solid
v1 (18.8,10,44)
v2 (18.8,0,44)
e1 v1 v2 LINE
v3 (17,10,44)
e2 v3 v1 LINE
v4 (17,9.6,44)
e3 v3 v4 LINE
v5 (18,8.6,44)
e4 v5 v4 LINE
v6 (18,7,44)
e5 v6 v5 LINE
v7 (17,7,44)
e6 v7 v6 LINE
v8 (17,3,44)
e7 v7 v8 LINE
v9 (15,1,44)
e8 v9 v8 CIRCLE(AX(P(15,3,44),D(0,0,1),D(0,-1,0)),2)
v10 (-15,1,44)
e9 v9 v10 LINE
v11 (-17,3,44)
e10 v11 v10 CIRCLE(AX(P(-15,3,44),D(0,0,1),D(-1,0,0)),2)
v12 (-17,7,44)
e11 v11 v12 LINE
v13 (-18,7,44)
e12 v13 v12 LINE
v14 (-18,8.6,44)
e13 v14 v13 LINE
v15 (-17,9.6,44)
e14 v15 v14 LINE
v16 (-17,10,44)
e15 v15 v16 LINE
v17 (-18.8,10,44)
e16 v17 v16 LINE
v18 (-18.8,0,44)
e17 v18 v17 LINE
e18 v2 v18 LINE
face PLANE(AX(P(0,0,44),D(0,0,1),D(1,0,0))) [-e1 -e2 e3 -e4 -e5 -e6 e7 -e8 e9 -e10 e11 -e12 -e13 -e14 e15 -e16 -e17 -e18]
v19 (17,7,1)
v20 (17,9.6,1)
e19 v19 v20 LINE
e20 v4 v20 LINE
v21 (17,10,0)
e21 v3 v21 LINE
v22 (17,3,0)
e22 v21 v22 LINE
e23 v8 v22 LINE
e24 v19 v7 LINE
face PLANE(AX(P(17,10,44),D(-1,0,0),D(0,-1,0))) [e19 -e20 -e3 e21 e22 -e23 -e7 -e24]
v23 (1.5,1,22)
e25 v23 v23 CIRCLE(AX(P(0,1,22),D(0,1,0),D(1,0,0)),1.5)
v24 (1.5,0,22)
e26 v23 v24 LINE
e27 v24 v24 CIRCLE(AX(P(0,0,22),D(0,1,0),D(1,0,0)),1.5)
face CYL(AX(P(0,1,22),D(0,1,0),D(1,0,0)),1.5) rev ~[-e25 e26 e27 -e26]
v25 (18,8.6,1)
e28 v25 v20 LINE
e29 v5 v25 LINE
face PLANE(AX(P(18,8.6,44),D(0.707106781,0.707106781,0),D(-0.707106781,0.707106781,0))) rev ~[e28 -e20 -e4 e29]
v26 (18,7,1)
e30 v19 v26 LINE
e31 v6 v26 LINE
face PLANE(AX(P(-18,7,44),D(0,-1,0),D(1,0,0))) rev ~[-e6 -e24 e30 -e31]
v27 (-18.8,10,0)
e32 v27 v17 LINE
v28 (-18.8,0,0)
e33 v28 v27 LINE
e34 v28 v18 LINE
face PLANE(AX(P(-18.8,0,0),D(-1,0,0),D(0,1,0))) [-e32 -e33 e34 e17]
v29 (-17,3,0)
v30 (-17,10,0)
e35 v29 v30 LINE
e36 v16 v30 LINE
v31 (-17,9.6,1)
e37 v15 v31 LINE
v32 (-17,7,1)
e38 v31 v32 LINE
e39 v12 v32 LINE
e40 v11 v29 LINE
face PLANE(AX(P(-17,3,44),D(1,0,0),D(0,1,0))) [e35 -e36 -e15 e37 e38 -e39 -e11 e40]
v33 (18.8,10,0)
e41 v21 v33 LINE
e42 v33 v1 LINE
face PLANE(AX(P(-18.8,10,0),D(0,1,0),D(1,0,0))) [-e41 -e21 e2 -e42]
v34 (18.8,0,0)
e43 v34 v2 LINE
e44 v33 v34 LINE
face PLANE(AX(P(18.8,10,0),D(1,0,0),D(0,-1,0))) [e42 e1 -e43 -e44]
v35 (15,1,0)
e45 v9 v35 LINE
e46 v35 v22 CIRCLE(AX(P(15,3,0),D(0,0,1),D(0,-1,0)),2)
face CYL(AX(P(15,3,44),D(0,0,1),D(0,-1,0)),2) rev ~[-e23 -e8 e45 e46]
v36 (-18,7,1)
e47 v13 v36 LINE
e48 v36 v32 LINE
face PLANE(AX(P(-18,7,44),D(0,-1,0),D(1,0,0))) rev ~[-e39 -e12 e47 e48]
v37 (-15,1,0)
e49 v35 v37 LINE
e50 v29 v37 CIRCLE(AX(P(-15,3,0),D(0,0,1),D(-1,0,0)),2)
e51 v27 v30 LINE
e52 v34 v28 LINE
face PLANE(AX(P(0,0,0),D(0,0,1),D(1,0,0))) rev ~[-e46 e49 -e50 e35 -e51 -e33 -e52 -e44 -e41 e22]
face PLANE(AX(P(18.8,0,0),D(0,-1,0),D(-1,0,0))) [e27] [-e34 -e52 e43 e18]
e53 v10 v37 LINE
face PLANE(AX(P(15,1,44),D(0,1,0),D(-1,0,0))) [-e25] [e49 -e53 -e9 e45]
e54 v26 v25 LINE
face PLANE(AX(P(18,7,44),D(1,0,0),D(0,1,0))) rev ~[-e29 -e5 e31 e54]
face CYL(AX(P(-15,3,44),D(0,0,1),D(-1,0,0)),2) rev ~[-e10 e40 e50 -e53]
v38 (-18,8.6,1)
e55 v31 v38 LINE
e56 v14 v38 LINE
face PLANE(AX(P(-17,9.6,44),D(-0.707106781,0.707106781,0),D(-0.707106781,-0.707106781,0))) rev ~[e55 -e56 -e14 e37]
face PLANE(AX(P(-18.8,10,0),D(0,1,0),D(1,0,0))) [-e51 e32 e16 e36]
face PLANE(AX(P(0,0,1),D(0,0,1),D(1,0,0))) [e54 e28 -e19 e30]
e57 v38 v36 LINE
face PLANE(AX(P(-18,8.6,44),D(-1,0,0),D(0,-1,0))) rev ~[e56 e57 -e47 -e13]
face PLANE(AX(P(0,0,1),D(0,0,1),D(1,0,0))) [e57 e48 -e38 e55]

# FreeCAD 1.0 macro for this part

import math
import FreeCAD as App
import Part
import Sketcher

doc = App.newDocument("Part")
params = doc.addObject("Spreadsheet::Sheet", "Params")
for row, (alias, value) in enumerate([
    ("sketch1_height", "10 mm"),
    ("sketch1_width", "37.6 mm"),
    ("pad1_length", "44 mm"),
    ("sketch2_radius", "2 mm"),
    ("sketch2_width", "34 mm"),
    ("pocket1_length", "44 mm"),
    ("sketch3_width", "34 mm"),
    ("sketch3_width2", "36 mm"),
    ("pocket2_length", "43 mm"),
    ("sketch4_diameter", "3 mm"),
], start=1):
    params.set(f"A{row}", alias)
    params.set(f"B{row}", "=" + value)
    params.setAlias(f"B{row}", alias)

body = doc.addObject("PartDesign::Body", "Body")

sketch1 = body.newObject("Sketcher::SketchObject", "Sketch")
sketch1.AttachmentSupport = (doc.getObject("XY_Plane"), [""])
sketch1.MapMode = "FlatFace"
sketch1.addGeometry(Part.LineSegment(App.Vector(19, 10, 0), App.Vector(-19, 10, 0)), False)
sketch1.addGeometry(Part.LineSegment(App.Vector(-19, 10, 0), App.Vector(-19, 0, 0)), False)
sketch1.addGeometry(Part.LineSegment(App.Vector(-19, 0, 0), App.Vector(19, 0, 0)), False)
sketch1.addGeometry(Part.LineSegment(App.Vector(19, 0, 0), App.Vector(19, 10, 0)), False)
sketch1.addConstraint(Sketcher.Constraint("Coincident", 0, 2, 1, 1))
sketch1.addConstraint(Sketcher.Constraint("Coincident", 1, 2, 2, 1))
sketch1.addConstraint(Sketcher.Constraint("Coincident", 2, 2, 3, 1))
sketch1.addConstraint(Sketcher.Constraint("Coincident", 3, 2, 0, 1))
sketch1.addConstraint(Sketcher.Constraint("Horizontal", 0))
sketch1.addConstraint(Sketcher.Constraint("Vertical", 1))
sketch1.addConstraint(Sketcher.Constraint("Horizontal", 2))
sketch1.addConstraint(Sketcher.Constraint("Vertical", 3))
sketch1.addConstraint(Sketcher.Constraint("Symmetric", 1, 2, 2, 2, -1, 1))
sketch1.addConstraint(Sketcher.Constraint("DistanceY", 1, 2, 1, 1, 10.0))
sketch1.addConstraint(Sketcher.Constraint("DistanceX", 0, 2, 0, 1, 37.6))
sketch1.setExpression("Constraints[9]", "Params.sketch1_height")
sketch1.setExpression("Constraints[10]", "Params.sketch1_width")
pad1 = body.newObject("PartDesign::Pad", "Pad")
pad1.Profile = sketch1
pad1.setExpression("Length", "Params.pad1_length")

sketch2 = body.newObject("Sketcher::SketchObject", "Sketch001")
sketch2.AttachmentSupport = (doc.getObject("XY_Plane"), [""])
sketch2.MapMode = "FlatFace"
sketch2.AttachmentOffset = App.Placement(App.Vector(0, 0, 44), App.Rotation())
sketch2.addGeometry(Part.LineSegment(App.Vector(17, 10, 0), App.Vector(-17, 10, 0)), False)
sketch2.addGeometry(Part.LineSegment(App.Vector(-17, 10, 0), App.Vector(-17, 3, 0)), False)
sketch2.addGeometry(Part.ArcOfCircle(Part.Circle(App.Vector(-15, 3, 0), App.Vector(0, 0, 1), 2), math.radians(180), math.radians(270)), False)
sketch2.addGeometry(Part.LineSegment(App.Vector(-15, 1, 0), App.Vector(15, 1, 0)), False)
sketch2.addGeometry(Part.ArcOfCircle(Part.Circle(App.Vector(15, 3, 0), App.Vector(0, 0, 1), 2), math.radians(-90), math.radians(0)), False)
sketch2.addGeometry(Part.LineSegment(App.Vector(17, 3, 0), App.Vector(17, 10, 0)), False)
sketch2.addConstraint(Sketcher.Constraint("Coincident", 0, 2, 1, 1))
sketch2.addConstraint(Sketcher.Constraint("Tangent", 1, 2, 2, 1))
sketch2.addConstraint(Sketcher.Constraint("Tangent", 2, 2, 3, 1))
sketch2.addConstraint(Sketcher.Constraint("Tangent", 3, 2, 4, 1))
sketch2.addConstraint(Sketcher.Constraint("Tangent", 4, 2, 5, 1))
sketch2.addConstraint(Sketcher.Constraint("Coincident", 5, 2, 0, 1))
sketch2.addConstraint(Sketcher.Constraint("Horizontal", 0))
sketch2.addConstraint(Sketcher.Constraint("Vertical", 1))
sketch2.addConstraint(Sketcher.Constraint("Horizontal", 3))
sketch2.addConstraint(Sketcher.Constraint("Vertical", 5))
sketch2.addConstraint(Sketcher.Constraint("Equal", 2, 4))
sketch2.addConstraint(Sketcher.Constraint("Radius", 2, 2.0))
sketch2.addConstraint(Sketcher.Constraint("DistanceX", 0, 2, 0, 1, 34.0))
sketch2.addConstraint(Sketcher.Constraint("DistanceY", 2, 2, 0, 2, 9.0))
sketch2.addConstraint(Sketcher.Constraint("DistanceX", 2, 3, -1, 1, 15.0))
sketch2.addConstraint(Sketcher.Constraint("DistanceY", -1, 1, 2, 3, 3.0))
sketch2.setExpression("Constraints[11]", "Params.sketch2_radius")
sketch2.setExpression("Constraints[12]", "Params.sketch2_width")
pocket1 = body.newObject("PartDesign::Pocket", "Pocket")
pocket1.Profile = sketch2
pocket1.setExpression("Length", "Params.pocket1_length")

sketch3 = body.newObject("Sketcher::SketchObject", "Sketch002")
sketch3.AttachmentSupport = (doc.getObject("XY_Plane"), [""])
sketch3.MapMode = "FlatFace"
sketch3.AttachmentOffset = App.Placement(App.Vector(0, 0, 44), App.Rotation())
sketch3.addGeometry(Part.LineSegment(App.Vector(18, 8.6, 0), App.Vector(17, 9.6, 0)), False)
sketch3.addGeometry(Part.LineSegment(App.Vector(17, 9.6, 0), App.Vector(-17, 9.6, 0)), False)
sketch3.addGeometry(Part.LineSegment(App.Vector(-17, 9.6, 0), App.Vector(-18, 8.6, 0)), False)
sketch3.addGeometry(Part.LineSegment(App.Vector(-18, 8.6, 0), App.Vector(-18, 7, 0)), False)
sketch3.addGeometry(Part.LineSegment(App.Vector(-18, 7, 0), App.Vector(18, 7, 0)), False)
sketch3.addGeometry(Part.LineSegment(App.Vector(18, 7, 0), App.Vector(18, 8.6, 0)), False)
sketch3.addConstraint(Sketcher.Constraint("Coincident", 0, 2, 1, 1))
sketch3.addConstraint(Sketcher.Constraint("Coincident", 1, 2, 2, 1))
sketch3.addConstraint(Sketcher.Constraint("Coincident", 2, 2, 3, 1))
sketch3.addConstraint(Sketcher.Constraint("Coincident", 3, 2, 4, 1))
sketch3.addConstraint(Sketcher.Constraint("Coincident", 4, 2, 5, 1))
sketch3.addConstraint(Sketcher.Constraint("Coincident", 5, 2, 0, 1))
sketch3.addConstraint(Sketcher.Constraint("Horizontal", 1))
sketch3.addConstraint(Sketcher.Constraint("Vertical", 3))
sketch3.addConstraint(Sketcher.Constraint("Horizontal", 4))
sketch3.addConstraint(Sketcher.Constraint("Vertical", 5))
sketch3.addConstraint(Sketcher.Constraint("Symmetric", 2, 2, 5, 2, -2))
sketch3.addConstraint(Sketcher.Constraint("Perpendicular", 0, 2))
sketch3.addConstraint(Sketcher.Constraint("Equal", 0, 2))
sketch3.addConstraint(Sketcher.Constraint("DistanceY", 3, 2, 1, 2, 2.6))
sketch3.addConstraint(Sketcher.Constraint("DistanceX", 1, 2, 1, 1, 34.0))
sketch3.addConstraint(Sketcher.Constraint("DistanceX", 4, 1, 4, 2, 36.0))
sketch3.addConstraint(Sketcher.Constraint("DistanceY", -1, 1, 3, 2, 7.0))
sketch3.setExpression("Constraints[14]", "Params.sketch3_width")
sketch3.setExpression("Constraints[15]", "Params.sketch3_width2")
pocket2 = body.newObject("PartDesign::Pocket", "Pocket001")
pocket2.Profile = sketch3
pocket2.setExpression("Length", "Params.pocket2_length")

sketch4 = body.newObject("Sketcher::SketchObject", "Sketch003")
sketch4.AttachmentSupport = (doc.getObject("XZ_Plane"), [""])
sketch4.MapMode = "FlatFace"
sketch4.AttachmentOffset = App.Placement(App.Vector(0, 0, -1), App.Rotation())
sketch4.addGeometry(Part.Circle(App.Vector(0, 22, 0), App.Vector(0, 0, 1), 1.5), False)
sketch4.addConstraint(Sketcher.Constraint("PointOnObject", 0, 3, -2))
sketch4.addConstraint(Sketcher.Constraint("Diameter", 0, 3.0))
sketch4.addConstraint(Sketcher.Constraint("DistanceY", -1, 1, 0, 3, 22.0))
sketch4.setExpression("Constraints[1]", "Params.sketch4_diameter")
pocket3 = body.newObject("PartDesign::Pocket", "Pocket002")
pocket3.Profile = sketch4
pocket3.Type = "ThroughAll"
pocket3.Reversed = True

doc.recompute()
